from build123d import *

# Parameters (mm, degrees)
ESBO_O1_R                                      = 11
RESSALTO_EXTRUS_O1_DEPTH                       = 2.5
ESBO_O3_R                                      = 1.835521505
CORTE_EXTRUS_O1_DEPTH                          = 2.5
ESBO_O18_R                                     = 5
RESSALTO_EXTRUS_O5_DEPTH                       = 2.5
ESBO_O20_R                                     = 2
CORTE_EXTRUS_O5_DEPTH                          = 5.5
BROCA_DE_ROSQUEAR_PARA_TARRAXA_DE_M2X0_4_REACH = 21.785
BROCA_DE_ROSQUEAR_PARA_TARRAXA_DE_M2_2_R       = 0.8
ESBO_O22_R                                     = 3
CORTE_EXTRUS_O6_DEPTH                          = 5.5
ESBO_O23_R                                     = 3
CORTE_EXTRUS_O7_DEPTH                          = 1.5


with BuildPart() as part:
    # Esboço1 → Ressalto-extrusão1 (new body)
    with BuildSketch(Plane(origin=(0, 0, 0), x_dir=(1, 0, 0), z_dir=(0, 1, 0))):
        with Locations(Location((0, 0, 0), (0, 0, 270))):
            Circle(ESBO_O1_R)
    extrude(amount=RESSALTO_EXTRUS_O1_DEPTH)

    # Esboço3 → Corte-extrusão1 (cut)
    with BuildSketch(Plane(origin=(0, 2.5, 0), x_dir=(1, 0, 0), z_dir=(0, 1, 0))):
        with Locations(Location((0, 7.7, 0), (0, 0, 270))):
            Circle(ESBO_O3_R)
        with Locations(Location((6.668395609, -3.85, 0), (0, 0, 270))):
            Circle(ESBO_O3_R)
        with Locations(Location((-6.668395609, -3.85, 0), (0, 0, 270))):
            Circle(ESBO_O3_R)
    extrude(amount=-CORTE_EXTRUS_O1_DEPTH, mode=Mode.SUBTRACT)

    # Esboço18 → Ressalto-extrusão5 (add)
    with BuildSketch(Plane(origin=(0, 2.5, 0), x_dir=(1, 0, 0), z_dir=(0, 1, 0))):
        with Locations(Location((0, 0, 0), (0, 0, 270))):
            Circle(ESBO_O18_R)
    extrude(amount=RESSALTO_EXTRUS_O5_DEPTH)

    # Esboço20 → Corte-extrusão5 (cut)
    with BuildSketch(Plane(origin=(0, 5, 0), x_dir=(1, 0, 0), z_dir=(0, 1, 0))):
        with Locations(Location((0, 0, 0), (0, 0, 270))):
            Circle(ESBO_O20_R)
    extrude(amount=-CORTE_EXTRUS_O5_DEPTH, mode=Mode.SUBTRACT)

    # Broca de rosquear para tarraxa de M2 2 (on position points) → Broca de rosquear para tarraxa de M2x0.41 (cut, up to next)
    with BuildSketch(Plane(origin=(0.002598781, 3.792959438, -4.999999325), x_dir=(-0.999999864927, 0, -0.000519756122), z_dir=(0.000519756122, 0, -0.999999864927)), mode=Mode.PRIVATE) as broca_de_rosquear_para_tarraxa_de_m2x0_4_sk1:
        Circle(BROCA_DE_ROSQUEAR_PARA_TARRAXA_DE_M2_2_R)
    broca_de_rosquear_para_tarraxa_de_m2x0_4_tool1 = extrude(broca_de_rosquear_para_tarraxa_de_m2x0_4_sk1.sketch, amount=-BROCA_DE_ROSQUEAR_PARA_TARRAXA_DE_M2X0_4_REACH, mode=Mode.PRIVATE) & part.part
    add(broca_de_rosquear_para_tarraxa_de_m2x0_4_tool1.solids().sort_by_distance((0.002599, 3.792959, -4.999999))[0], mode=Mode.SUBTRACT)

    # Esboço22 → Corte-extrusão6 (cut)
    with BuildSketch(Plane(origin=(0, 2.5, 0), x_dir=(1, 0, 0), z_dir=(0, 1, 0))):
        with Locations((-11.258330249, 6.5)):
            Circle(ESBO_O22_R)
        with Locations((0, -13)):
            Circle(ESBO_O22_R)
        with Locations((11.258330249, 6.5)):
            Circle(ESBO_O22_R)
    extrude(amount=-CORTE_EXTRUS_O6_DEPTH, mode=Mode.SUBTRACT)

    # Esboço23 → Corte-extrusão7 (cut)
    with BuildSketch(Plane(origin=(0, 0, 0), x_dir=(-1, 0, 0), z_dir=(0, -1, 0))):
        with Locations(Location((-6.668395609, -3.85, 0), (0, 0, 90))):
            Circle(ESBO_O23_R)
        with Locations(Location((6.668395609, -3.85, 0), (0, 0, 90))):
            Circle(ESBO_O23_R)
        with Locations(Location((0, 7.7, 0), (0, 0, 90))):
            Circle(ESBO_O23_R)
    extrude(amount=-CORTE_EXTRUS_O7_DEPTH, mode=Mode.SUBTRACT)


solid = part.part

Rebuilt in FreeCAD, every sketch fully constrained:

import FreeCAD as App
import Part
import Sketcher

doc = App.newDocument("Part")
body = doc.addObject("PartDesign::Body", "Body")

sketch1 = doc.addObject("Sketcher::SketchObject", "Sketch")
body.addObject(sketch1)
sketch1.AttachmentSupport = (doc.XZ_Plane, [""])
sketch1.MapMode = "FlatFace"
sketch1.addGeometry(Part.Circle(App.Vector(0, 0, 0), App.Vector(0, 0, 1), 11), False)
sketch1.addConstraint([
    Sketcher.Constraint("Coincident", 0, 3, -1, 1),
    Sketcher.Constraint("Diameter", 0, 22.0),
])
pad1 = doc.addObject("PartDesign::Pad", "Pad")
body.addObject(pad1)
pad1.Profile = sketch1
pad1.Length = 2.5
pad1.Reversed = True

sketch2 = doc.addObject("Sketcher::SketchObject", "Sketch001")
body.addObject(sketch2)
sketch2.AttachmentSupport = (doc.XZ_Plane, [""])
sketch2.MapMode = "FlatFace"
sketch2.AttachmentOffset = App.Placement(App.Vector(0, 0, -2.5), App.Rotation())
sketch2.addGeometry([
    Part.Circle(App.Vector(0, -7.7, 0), App.Vector(0, 0, 1), 1.835522),
    Part.Circle(App.Vector(6.668396, 3.85, 0), App.Vector(0, 0, 1), 1.835522),
    Part.Circle(App.Vector(-6.668396, 3.85, 0), App.Vector(0, 0, 1), 1.835522),
], False)
sketch2.addConstraint([
    Sketcher.Constraint("Equal", 0, 1),
    Sketcher.Constraint("Equal", 1, 2),
    Sketcher.Constraint("Symmetric", 1, 3, 2, 3, -2),
    Sketcher.Constraint("PointOnObject", 0, 3, -2),
    Sketcher.Constraint("DistanceY", 0, 3, -1, 1, 7.7),
    Sketcher.Constraint("DistanceY", -1, 1, 1, 3, 3.85),
    Sketcher.Constraint("Diameter", 0, 3.671043),
    Sketcher.Constraint("DistanceX", 2, 3, 1, 3, 13.336791),
])
pocket1 = doc.addObject("PartDesign::Pocket", "Pocket")
body.addObject(pocket1)
pocket1.Profile = sketch2
pocket1.Length = 2.5
pocket1.Reversed = True

sketch3 = doc.addObject("Sketcher::SketchObject", "Sketch002")
body.addObject(sketch3)
sketch3.AttachmentSupport = (doc.XZ_Plane, [""])
sketch3.MapMode = "FlatFace"
sketch3.AttachmentOffset = App.Placement(App.Vector(0, 0, -2.5), App.Rotation())
sketch3.addGeometry(Part.Circle(App.Vector(0, 0, 0), App.Vector(0, 0, 1), 5), False)
sketch3.addConstraint([
    Sketcher.Constraint("Coincident", 0, 3, -1, 1),
    Sketcher.Constraint("Diameter", 0, 10.0),
])
pad2 = doc.addObject("PartDesign::Pad", "Pad001")
body.addObject(pad2)
pad2.Profile = sketch3
pad2.Length = 2.5
pad2.Reversed = True

sketch4 = doc.addObject("Sketcher::SketchObject", "Sketch003")
body.addObject(sketch4)
sketch4.AttachmentSupport = (doc.XZ_Plane, [""])
sketch4.MapMode = "FlatFace"
sketch4.AttachmentOffset = App.Placement(App.Vector(0, 0, -5), App.Rotation())
sketch4.addGeometry(Part.Circle(App.Vector(0, 0, 0), App.Vector(0, 0, 1), 2), False)
sketch4.addConstraint([
    Sketcher.Constraint("Coincident", 0, 3, -1, 1),
    Sketcher.Constraint("Diameter", 0, 4.0),
])
pocket2 = doc.addObject("PartDesign::Pocket", "Pocket001")
body.addObject(pocket2)
pocket2.Profile = sketch4
pocket2.Length = 5.5
pocket2.Reversed = True

sketch5 = doc.addObject("Sketcher::SketchObject", "Sketch004")
body.addObject(sketch5)
sketch5.Placement = App.Placement(App.Vector(0.002599, 3.792959, -4.999999), App.Rotation(App.Vector(-0.999999865, 0, -0.000519756), App.Vector(0, 1, 0), App.Vector(0.000519756, 0, -0.999999865), "ZXY"))
sketch5.addGeometry(Part.Circle(App.Vector(0, 0, 0), App.Vector(0, 0, 1), 0.8), False)
sketch5.addConstraint([
    Sketcher.Constraint("Coincident", 0, 3, -1, 1),
    Sketcher.Constraint("Diameter", 0, 1.6),
])
pocket3 = doc.addObject("PartDesign::Pocket", "Pocket002")
body.addObject(pocket3)
pocket3.Profile = sketch5
pocket3.Type = "UpToFirst"

sketch6 = doc.addObject("Sketcher::SketchObject", "Sketch005")
body.addObject(sketch6)
sketch6.AttachmentSupport = (doc.XZ_Plane, [""])
sketch6.MapMode = "FlatFace"
sketch6.AttachmentOffset = App.Placement(App.Vector(0, 0, -2.5), App.Rotation())
sketch6.addGeometry([
    Part.Circle(App.Vector(-11.25833, -6.5, 0), App.Vector(0, 0, 1), 3),
    Part.Circle(App.Vector(0, 13, 0), App.Vector(0, 0, 1), 3),
    Part.Circle(App.Vector(11.25833, -6.5, 0), App.Vector(0, 0, 1), 3),
], False)
sketch6.addConstraint([
    Sketcher.Constraint("Equal", 0, 1),
    Sketcher.Constraint("Equal", 1, 2),
    Sketcher.Constraint("Symmetric", 0, 3, 2, 3, -2),
    Sketcher.Constraint("PointOnObject", 1, 3, -2),
    Sketcher.Constraint("Diameter", 0, 6.0),
    Sketcher.Constraint("DistanceY", -1, 1, 1, 3, 13.0),
    Sketcher.Constraint("DistanceY", 0, 3, -1, 1, 6.5),
    Sketcher.Constraint("DistanceX", 0, 3, -1, 1, 11.25833),
])
pocket4 = doc.addObject("PartDesign::Pocket", "Pocket003")
body.addObject(pocket4)
pocket4.Profile = sketch6
pocket4.Length = 5.5
pocket4.Reversed = True

sketch7 = doc.addObject("Sketcher::SketchObject", "Sketch006")
body.addObject(sketch7)
sketch7.AttachmentSupport = (doc.XZ_Plane, [""])
sketch7.MapMode = "FlatFace"
sketch7.addGeometry([
    Part.Circle(App.Vector(6.668396, 3.85, 0), App.Vector(0, 0, 1), 3),
    Part.Circle(App.Vector(-6.668396, 3.85, 0), App.Vector(0, 0, 1), 3),
    Part.Circle(App.Vector(0, -7.7, 0), App.Vector(0, 0, 1), 3),
], False)
sketch7.addConstraint([
    Sketcher.Constraint("Equal", 0, 1),
    Sketcher.Constraint("Equal", 1, 2),
    Sketcher.Constraint("Symmetric", 0, 3, 1, 3, -2),
    Sketcher.Constraint("PointOnObject", 2, 3, -2),
    Sketcher.Constraint("Diameter", 0, 6.0),
    Sketcher.Constraint("DistanceY", 2, 3, -1, 1, 7.7),
    Sketcher.Constraint("DistanceY", -1, 1, 0, 3, 3.85),
    Sketcher.Constraint("DistanceX", 1, 3, 0, 3, 13.336791),
])
pocket5 = doc.addObject("PartDesign::Pocket", "Pocket004")
body.addObject(pocket5)
pocket5.Profile = sketch7
pocket5.Length = 1.5

doc.recompute()
